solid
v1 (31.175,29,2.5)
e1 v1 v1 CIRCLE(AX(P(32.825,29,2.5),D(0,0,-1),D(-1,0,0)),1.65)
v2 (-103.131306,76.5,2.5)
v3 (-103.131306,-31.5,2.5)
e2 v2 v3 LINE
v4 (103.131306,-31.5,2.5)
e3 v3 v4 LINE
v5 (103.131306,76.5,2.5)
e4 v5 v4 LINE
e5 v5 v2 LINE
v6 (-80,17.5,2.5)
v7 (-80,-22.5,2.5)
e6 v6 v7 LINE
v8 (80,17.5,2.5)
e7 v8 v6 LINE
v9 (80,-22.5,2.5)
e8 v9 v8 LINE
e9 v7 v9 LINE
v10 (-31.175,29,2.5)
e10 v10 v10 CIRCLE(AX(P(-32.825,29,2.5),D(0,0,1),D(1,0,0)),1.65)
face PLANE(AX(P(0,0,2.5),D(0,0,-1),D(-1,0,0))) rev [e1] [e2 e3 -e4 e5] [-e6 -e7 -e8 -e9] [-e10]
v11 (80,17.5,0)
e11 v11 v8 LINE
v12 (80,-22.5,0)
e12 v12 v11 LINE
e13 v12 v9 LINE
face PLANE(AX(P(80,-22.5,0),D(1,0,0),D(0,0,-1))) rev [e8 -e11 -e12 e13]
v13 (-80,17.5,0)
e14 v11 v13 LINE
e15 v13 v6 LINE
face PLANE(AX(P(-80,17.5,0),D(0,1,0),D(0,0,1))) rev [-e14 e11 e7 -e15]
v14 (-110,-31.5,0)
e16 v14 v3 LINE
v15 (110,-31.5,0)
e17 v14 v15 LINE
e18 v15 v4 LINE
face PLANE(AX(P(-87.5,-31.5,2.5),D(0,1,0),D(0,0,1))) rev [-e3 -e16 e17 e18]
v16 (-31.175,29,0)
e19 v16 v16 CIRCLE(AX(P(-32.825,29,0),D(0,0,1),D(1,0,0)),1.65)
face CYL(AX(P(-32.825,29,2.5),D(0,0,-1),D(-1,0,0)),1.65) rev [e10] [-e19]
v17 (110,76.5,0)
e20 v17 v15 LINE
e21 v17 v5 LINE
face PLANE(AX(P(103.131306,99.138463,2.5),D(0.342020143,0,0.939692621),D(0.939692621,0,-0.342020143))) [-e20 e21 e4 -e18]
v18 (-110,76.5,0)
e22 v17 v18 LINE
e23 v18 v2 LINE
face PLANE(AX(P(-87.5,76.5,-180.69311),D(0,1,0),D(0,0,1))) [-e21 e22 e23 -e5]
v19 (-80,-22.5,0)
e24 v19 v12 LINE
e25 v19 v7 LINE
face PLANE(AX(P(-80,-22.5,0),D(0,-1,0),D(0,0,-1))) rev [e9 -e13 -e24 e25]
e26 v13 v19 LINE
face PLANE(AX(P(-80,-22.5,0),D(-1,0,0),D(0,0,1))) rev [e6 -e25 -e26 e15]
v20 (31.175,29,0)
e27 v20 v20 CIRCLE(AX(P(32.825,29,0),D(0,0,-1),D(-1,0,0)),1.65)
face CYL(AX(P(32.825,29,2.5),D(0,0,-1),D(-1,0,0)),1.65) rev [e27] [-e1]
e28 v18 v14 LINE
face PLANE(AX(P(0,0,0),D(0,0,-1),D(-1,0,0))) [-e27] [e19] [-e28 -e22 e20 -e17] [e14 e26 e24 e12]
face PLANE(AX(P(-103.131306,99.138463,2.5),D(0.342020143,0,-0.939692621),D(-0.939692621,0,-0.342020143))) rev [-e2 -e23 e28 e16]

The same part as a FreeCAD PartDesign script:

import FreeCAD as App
import Part
import Sketcher
Q = App.Units.Quantity


def add_polygon(sketch, points):
    """Adds a closed chain of lines whose ends are joined by coincident constraints."""
    first, n = sketch.GeometryCount, len(points)
    for a, b in zip(points, points[1:] + points[:1]):
        sketch.addGeometry(Part.LineSegment(App.Vector(*a, 0), App.Vector(*b, 0)), False)
    for i in range(n):
        sketch.addConstraint(Sketcher.Constraint("Coincident", first + i, 2, first + (i + 1) % n, 1))

doc = App.newDocument("Part")
params = doc.addObject("Spreadsheet::Sheet", "Params")
for row, (alias, value) in enumerate([
    ("sketch1_width", "175 mm"),
    ("sketch1_height", "63 mm"),
    ("pad1_length", "2.5 mm"),
    ("sketch2_width", "160 mm"),
    ("sketch2_height", "40 mm"),
    ("pocket1_length", "2.5 mm"),
    ("sketch3_width", "175 mm"),
    ("sketch3_height", "45 mm"),
    ("pad2_length", "2.5 mm"),
    ("sketch4_width", "22.5 mm"),
    ("sketch4_height", "2.5 mm"),
    ("pad3_length", "108 mm"),
    ("sketch5_diameter", "3.3 mm"),
], start=1):
    params.set(f"A{row}", alias)
    params.set(f"B{row}", "=" + value)
    params.setAlias(f"B{row}", alias)

body = doc.addObject("PartDesign::Body", "Body")

sketch1 = body.newObject("Sketcher::SketchObject", "Sketch")
sketch1.AttachmentSupport = (doc.getObject("XY_Plane"), [""])
sketch1.MapMode = "FlatFace"
add_polygon(sketch1, [(-87.5, 31.5), (-87.5, -31.5), (87.5, -31.5), (87.5, 31.5)])
sketch1.addConstraint([
    Sketcher.Constraint("Vertical", 0),
    Sketcher.Constraint("Horizontal", 1),
    Sketcher.Constraint("Vertical", 2),
    Sketcher.Constraint("Horizontal", 3),
    Sketcher.Constraint("Symmetric", 0, 2, 2, 2, -1, 1),
    Sketcher.Constraint("DistanceX", 1, 1, 1, 2, 175.0),
    Sketcher.Constraint("DistanceY", 0, 2, 0, 1, 63.0),
])
sketch1.setExpression("Constraints[9]", "Params.sketch1_width")
sketch1.setExpression("Constraints[10]", "Params.sketch1_height")
pad1 = body.newObject("PartDesign::Pad", "Pad")
pad1.Profile = sketch1
pad1.setExpression("Length", "Params.pad1_length")

sketch2 = body.newObject("Sketcher::SketchObject", "Sketch001")
sketch2.AttachmentSupport = (doc.getObject("XY_Plane"), [""])
sketch2.MapMode = "FlatFace"
sketch2.AttachmentOffset = App.Placement(App.Vector(0, 0, 2.5), App.Rotation())
add_polygon(sketch2, [(-80, 17.5), (-80, -22.5), (80, -22.5), (80, 17.5)])
sketch2.addConstraint([
    Sketcher.Constraint("Vertical", 0),
    Sketcher.Constraint("Horizontal", 1),
    Sketcher.Constraint("Vertical", 2),
    Sketcher.Constraint("Horizontal", 3),
    Sketcher.Constraint("DistanceX", 1, 1, 1, 2, 160.0),
    Sketcher.Constraint("DistanceY", 0, 2, 0, 1, 40.0),
    Sketcher.Constraint("DistanceX", 0, 2, -1, 1, 80.0),
    Sketcher.Constraint("DistanceY", 0, 2, -1, 1, 22.5),
])
sketch2.setExpression("Constraints[8]", "Params.sketch2_width")
sketch2.setExpression("Constraints[9]", "Params.sketch2_height")
pocket1 = body.newObject("PartDesign::Pocket", "Pocket")
pocket1.Profile = sketch2
pocket1.setExpression("Length", "Params.pocket1_length")

sketch3 = body.newObject("Sketcher::SketchObject", "Sketch002")
sketch3.AttachmentSupport = (doc.getObject("XY_Plane"), [""])
sketch3.MapMode = "FlatFace"
sketch3.AttachmentOffset = App.Placement(App.Vector(0, 0, 2.5), App.Rotation())
add_polygon(sketch3, [(-87.5, 76.5), (-87.5, 31.5), (87.5, 31.5), (87.5, 76.5)])
sketch3.addConstraint([
    Sketcher.Constraint("Vertical", 0),
    Sketcher.Constraint("Horizontal", 1),
    Sketcher.Constraint("Vertical", 2),
    Sketcher.Constraint("Horizontal", 3),
    Sketcher.Constraint("DistanceX", 1, 1, 1, 2, 175.0),
    Sketcher.Constraint("DistanceY", 0, 2, 0, 1, 45.0),
    Sketcher.Constraint("DistanceX", 0, 2, -1, 1, 87.5),
    Sketcher.Constraint("DistanceY", -1, 1, 0, 2, 31.5),
])
sketch3.setExpression("Constraints[8]", "Params.sketch3_width")
sketch3.setExpression("Constraints[9]", "Params.sketch3_height")
pad2 = body.newObject("PartDesign::Pad", "Pad001")
pad2.Profile = sketch3
pad2.setExpression("Length", "Params.pad2_length")
pad2.Reversed = True

sketch4 = body.newObject("Sketcher::SketchObject", "Sketch003")
sketch4.AttachmentSupport = (doc.getObject("XZ_Plane"), [""])
sketch4.MapMode = "FlatFace"
sketch4.AttachmentOffset = App.Placement(App.Vector(0, 0, 31.5), App.Rotation())
add_polygon(sketch4, [(-103.131306, 2.5), (-87.5, 2.5), (-87.5, 0), (-110, 0)])
sketch4.addConstraint([
    Sketcher.Constraint("Horizontal", 0),
    Sketcher.Constraint("Vertical", 1),
    Sketcher.Constraint("Horizontal", 2),
    Sketcher.Constraint("PointOnObject", 1, 2, -1),
    Sketcher.Constraint("Angle", 3, Q("20 deg")),
    Sketcher.Constraint("DistanceX", 2, 2, 2, 1, 22.5),
    Sketcher.Constraint("DistanceY", 1, 2, 1, 1, 2.5),
    Sketcher.Constraint("DistanceX", 2, 2, -1, 1, 110.0),
])
sketch4.setExpression("Constraints[9]", "Params.sketch4_width")
sketch4.setExpression("Constraints[10]", "Params.sketch4_height")
pad3 = body.newObject("PartDesign::Pad", "Pad002")
pad3.Profile = sketch4
pad3.setExpression("Length", "Params.pad3_length")
pad3.Reversed = True
doc.recompute()

mirrored = body.newObject("PartDesign::Mirrored", "Mirrored")
mirrored.Originals = [pad3]
mirrored.MirrorPlane = (doc.getObject("YZ_Plane"), [""])
body.Tip = mirrored

sketch5 = body.newObject("Sketcher::SketchObject", "Sketch004")
sketch5.AttachmentSupport = (doc.getObject("XY_Plane"), [""])
sketch5.MapMode = "FlatFace"
sketch5.addGeometry(Part.Circle(App.Vector(32.825, 29, 0), App.Vector(0, 0, 1), 1.65), False)
sketch5.addConstraint([
    Sketcher.Constraint("Diameter", 0, 3.3),
    Sketcher.Constraint("DistanceY", -1, 1, 0, 3, 29.0),
    Sketcher.Constraint("DistanceX", -1, 1, 0, 3, 32.825),
])
sketch5.setExpression("Constraints[0]", "Params.sketch5_diameter")
pocket2 = body.newObject("PartDesign::Pocket", "Pocket001")
pocket2.Profile = sketch5
pocket2.Type = "ThroughAll"
pocket2.Reversed = True
doc.recompute()

mirrored2 = body.newObject("PartDesign::Mirrored", "Mirrored001")
mirrored2.Originals = [pocket2]
mirrored2.MirrorPlane = (doc.getObject("YZ_Plane"), [""])
body.Tip = mirrored2

doc.recompute()
